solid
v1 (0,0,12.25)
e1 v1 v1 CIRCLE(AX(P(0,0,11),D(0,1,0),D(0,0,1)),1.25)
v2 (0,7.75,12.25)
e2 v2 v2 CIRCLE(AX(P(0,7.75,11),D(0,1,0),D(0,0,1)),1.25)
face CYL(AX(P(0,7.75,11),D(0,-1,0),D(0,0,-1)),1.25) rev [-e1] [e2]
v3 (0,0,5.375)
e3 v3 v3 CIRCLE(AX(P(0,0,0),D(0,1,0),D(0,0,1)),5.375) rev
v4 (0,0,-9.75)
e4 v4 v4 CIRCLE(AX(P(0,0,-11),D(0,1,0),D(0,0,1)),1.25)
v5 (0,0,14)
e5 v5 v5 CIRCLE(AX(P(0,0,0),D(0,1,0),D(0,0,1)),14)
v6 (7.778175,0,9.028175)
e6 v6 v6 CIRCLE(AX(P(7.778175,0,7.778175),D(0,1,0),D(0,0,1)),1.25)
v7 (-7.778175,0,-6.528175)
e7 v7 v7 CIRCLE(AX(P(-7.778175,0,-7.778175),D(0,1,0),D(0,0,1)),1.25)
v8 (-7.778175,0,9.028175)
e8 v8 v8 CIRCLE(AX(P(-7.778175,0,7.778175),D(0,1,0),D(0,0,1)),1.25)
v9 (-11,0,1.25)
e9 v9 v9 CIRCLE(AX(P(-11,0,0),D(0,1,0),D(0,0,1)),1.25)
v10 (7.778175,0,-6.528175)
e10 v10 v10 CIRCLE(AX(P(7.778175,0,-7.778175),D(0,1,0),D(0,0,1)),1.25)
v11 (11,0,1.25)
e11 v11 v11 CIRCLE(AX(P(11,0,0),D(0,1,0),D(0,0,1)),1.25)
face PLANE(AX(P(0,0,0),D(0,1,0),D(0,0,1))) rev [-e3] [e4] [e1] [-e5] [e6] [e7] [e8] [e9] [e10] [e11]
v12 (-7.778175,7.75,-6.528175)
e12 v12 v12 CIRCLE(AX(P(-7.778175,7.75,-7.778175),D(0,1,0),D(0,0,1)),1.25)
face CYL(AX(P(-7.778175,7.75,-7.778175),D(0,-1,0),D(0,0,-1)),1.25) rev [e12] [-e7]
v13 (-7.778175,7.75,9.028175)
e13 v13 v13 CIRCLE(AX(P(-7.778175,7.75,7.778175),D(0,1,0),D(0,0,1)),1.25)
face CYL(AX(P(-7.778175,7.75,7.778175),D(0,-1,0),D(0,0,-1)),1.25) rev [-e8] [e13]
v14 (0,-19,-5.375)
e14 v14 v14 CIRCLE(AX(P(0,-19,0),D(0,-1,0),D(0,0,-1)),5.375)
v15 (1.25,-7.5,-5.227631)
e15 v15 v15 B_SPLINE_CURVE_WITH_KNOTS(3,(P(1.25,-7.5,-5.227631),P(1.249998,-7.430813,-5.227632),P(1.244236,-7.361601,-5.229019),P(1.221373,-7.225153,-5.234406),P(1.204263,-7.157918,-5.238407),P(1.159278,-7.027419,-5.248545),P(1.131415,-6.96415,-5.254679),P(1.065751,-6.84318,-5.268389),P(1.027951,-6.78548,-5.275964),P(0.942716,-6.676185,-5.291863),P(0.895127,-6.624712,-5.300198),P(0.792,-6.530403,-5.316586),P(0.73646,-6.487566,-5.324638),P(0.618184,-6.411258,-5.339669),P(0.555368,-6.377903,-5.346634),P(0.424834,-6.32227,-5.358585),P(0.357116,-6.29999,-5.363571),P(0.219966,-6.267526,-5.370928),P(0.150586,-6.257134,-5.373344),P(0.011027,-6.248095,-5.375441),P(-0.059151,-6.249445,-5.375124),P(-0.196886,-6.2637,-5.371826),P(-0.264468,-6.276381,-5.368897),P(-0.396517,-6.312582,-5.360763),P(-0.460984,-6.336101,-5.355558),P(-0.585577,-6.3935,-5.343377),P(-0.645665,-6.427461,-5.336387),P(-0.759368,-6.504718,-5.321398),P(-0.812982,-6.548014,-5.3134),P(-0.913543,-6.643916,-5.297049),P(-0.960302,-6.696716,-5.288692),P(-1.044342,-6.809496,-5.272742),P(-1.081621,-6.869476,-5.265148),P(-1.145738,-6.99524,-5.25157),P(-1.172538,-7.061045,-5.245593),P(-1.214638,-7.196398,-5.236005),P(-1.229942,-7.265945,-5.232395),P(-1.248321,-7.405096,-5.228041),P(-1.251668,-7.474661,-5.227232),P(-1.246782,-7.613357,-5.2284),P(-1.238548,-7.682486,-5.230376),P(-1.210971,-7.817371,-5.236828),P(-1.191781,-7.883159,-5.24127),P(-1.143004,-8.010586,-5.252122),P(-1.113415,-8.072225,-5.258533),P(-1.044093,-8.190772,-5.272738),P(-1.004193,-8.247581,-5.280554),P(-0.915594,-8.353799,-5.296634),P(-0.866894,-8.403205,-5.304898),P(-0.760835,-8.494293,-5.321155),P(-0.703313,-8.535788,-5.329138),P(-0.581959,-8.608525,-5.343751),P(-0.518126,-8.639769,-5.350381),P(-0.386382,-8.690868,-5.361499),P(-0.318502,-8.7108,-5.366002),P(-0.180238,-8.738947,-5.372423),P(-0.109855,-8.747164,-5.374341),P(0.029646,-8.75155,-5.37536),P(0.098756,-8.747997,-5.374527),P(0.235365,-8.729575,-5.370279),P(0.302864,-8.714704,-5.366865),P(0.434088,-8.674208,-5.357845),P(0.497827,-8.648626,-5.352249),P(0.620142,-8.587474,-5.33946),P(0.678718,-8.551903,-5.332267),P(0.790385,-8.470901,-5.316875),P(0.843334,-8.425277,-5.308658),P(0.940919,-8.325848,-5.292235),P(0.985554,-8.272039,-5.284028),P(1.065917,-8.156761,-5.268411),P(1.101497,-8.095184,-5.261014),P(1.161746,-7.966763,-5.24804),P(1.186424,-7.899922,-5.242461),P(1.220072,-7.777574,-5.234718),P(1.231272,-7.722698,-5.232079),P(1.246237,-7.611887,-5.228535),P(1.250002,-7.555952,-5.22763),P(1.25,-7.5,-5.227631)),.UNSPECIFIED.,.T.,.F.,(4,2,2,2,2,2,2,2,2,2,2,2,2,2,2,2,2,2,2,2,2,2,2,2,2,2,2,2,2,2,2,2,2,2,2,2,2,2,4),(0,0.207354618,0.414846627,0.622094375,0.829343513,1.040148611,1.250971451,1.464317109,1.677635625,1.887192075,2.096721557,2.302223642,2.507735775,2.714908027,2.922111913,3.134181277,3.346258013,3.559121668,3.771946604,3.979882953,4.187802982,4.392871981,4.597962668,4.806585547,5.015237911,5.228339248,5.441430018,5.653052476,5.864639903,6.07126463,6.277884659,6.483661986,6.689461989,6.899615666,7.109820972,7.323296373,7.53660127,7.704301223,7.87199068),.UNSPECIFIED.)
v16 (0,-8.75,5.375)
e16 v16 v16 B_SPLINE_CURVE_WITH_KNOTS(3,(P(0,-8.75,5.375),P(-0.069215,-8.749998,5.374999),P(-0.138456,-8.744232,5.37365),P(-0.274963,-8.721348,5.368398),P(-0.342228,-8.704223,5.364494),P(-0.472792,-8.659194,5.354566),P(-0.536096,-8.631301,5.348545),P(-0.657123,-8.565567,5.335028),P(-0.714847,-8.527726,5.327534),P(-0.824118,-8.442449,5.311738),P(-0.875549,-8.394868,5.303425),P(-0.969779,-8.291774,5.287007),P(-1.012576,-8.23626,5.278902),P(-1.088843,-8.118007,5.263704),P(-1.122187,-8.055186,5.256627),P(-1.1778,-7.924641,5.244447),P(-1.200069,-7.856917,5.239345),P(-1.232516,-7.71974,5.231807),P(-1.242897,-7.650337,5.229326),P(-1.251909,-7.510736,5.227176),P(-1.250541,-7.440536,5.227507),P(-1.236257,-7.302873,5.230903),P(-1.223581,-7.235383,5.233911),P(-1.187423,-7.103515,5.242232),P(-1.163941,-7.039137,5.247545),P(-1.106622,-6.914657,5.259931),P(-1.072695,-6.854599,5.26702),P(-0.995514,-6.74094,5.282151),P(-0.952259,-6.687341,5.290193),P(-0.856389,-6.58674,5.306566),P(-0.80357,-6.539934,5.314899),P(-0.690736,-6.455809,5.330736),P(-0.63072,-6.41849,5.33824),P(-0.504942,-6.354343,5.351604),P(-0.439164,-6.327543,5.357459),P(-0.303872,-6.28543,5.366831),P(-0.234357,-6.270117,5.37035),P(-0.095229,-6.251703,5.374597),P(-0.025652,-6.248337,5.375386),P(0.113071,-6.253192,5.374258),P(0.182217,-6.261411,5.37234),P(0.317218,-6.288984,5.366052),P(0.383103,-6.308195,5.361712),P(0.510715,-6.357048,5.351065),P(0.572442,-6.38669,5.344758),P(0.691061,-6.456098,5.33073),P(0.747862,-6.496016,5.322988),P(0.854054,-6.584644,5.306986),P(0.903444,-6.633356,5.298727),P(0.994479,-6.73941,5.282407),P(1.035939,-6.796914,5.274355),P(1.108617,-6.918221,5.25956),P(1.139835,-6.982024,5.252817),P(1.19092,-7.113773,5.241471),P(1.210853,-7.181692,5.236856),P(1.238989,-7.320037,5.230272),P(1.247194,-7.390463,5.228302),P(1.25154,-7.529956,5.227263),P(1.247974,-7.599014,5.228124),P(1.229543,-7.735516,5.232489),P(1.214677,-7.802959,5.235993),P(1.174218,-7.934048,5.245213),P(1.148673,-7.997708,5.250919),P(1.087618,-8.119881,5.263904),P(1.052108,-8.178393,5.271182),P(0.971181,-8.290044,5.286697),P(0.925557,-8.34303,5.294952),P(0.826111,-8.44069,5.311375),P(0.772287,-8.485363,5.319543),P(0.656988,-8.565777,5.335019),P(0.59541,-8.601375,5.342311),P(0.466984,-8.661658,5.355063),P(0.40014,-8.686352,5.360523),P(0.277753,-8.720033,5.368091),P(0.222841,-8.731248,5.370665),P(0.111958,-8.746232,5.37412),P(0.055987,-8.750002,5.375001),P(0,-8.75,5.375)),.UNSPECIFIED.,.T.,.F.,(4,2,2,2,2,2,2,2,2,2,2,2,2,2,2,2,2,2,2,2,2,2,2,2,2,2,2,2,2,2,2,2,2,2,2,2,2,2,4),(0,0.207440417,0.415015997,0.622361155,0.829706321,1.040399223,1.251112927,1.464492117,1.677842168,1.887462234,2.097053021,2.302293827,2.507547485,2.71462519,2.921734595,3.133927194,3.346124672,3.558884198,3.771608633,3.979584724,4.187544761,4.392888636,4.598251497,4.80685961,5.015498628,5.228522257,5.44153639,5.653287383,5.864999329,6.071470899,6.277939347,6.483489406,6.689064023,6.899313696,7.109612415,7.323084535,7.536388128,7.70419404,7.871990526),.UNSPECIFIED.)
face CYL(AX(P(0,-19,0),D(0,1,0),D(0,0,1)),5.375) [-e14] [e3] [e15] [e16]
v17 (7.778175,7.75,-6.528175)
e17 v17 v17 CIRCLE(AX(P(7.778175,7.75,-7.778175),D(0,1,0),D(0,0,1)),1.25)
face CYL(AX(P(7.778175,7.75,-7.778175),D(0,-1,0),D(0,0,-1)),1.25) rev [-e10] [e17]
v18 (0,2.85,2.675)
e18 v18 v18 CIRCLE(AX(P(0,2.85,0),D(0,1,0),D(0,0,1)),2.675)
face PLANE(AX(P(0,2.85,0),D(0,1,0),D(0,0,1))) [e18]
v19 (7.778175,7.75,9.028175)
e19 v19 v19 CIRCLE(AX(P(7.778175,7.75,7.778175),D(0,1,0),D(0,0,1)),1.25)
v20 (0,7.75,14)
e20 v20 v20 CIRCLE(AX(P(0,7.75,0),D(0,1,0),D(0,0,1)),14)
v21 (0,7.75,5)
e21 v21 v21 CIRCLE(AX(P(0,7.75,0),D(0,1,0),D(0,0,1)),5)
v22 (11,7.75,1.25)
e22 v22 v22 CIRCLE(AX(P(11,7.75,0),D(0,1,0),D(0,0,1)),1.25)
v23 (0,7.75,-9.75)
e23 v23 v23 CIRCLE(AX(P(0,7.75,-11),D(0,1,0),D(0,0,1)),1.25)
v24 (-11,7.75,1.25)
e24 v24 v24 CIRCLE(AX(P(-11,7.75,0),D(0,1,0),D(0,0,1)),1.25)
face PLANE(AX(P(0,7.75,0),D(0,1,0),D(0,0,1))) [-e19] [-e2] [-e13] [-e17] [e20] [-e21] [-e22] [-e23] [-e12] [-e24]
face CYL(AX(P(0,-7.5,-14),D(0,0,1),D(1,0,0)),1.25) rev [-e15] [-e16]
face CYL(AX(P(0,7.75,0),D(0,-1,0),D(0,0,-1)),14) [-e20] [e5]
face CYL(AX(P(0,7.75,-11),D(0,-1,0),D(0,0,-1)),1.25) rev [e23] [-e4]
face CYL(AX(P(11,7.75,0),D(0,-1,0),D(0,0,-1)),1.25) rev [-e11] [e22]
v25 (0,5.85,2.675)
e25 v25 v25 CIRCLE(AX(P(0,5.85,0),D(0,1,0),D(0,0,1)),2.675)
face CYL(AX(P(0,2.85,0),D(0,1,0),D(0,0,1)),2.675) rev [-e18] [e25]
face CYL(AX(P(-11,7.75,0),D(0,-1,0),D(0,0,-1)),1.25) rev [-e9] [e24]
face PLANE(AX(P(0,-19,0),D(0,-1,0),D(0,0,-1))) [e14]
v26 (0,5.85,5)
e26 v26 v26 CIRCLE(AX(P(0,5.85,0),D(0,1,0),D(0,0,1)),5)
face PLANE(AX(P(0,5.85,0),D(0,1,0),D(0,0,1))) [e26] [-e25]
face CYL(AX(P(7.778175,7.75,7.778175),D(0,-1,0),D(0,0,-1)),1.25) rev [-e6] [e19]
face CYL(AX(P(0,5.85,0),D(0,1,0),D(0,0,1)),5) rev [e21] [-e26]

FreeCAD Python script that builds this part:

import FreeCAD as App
import Part
import Sketcher

doc = App.newDocument("Part")
body = doc.addObject("PartDesign::Body", "Body")

# Sketch on XZ plane
sketch1 = body.newObject("Sketcher::SketchObject", "Sketch")
sketch1.AttachmentSupport = (doc.getObject("XZ_Plane"), [""])
sketch1.MapMode = "FlatFace"
sketch1.addGeometry([
    Part.Circle(App.Vector(0, 0, 0), App.Vector(0, 0, 1), 14),  # 0
    Part.Circle(App.Vector(-7.778175, 7.778175, 0), App.Vector(0, 0, 1), 1.25),  # 1
    Part.Circle(App.Vector(0, 11, 0), App.Vector(0, 0, 1), 1.25),  # 2
    Part.Circle(App.Vector(-11, 0, 0), App.Vector(0, 0, 1), 1.25),  # 3
    Part.Circle(App.Vector(7.778175, 7.778175, 0), App.Vector(0, 0, 1), 1.25),  # 4
    Part.Circle(App.Vector(11, 0, 0), App.Vector(0, 0, 1), 1.25),  # 5
    Part.Circle(App.Vector(-7.778175, -7.778175, 0), App.Vector(0, 0, 1), 1.25),  # 6
    Part.Circle(App.Vector(0, -11, 0), App.Vector(0, 0, 1), 1.25),  # 7
    Part.Circle(App.Vector(7.778175, -7.778175, 0), App.Vector(0, 0, 1), 1.25),  # 8
], False)
sketch1.addConstraint([
    Sketcher.Constraint("Coincident", 0, 3, -1, 1),
    Sketcher.Constraint("Equal", 1, 2),
    Sketcher.Constraint("Equal", 2, 3),
    Sketcher.Constraint("Equal", 3, 4),
    Sketcher.Constraint("Equal", 4, 5),
    Sketcher.Constraint("Equal", 5, 6),
    Sketcher.Constraint("Equal", 6, 7),
    Sketcher.Constraint("Equal", 7, 8),
    Sketcher.Constraint("Symmetric", 3, 3, 5, 3, -1, 1),
    Sketcher.Constraint("Symmetric", 4, 3, 6, 3, -1, 1),
    Sketcher.Constraint("Symmetric", 2, 3, 7, 3, -1, 1),
    Sketcher.Constraint("Symmetric", 1, 3, 8, 3, -1, 1),
    Sketcher.Constraint("Symmetric", 1, 3, 4, 3, -2),
    Sketcher.Constraint("PointOnObject", 2, 3, -2),
    Sketcher.Constraint("PointOnObject", 3, 3, -1),
    Sketcher.Constraint("Diameter", 0, 28.0),
    Sketcher.Constraint("Diameter", 1, 2.5),
    Sketcher.Constraint("DistanceY", -1, 1, 2, 3, 11.0),
    Sketcher.Constraint("DistanceX", 3, 3, -1, 1, 11.0),
    Sketcher.Constraint("DistanceX", 1, 3, 4, 3, 15.556349),
    Sketcher.Constraint("DistanceY", 6, 3, 1, 3, 15.556349),
])
pad1 = body.newObject("PartDesign::Pad", "Pad")
pad1.Profile = sketch1
pad1.Length = 7.75
pad1.Reversed = True

# Sketch on XZ plane
sketch2 = body.newObject("Sketcher::SketchObject", "Sketch001")
sketch2.AttachmentSupport = (doc.getObject("XZ_Plane"), [""])
sketch2.MapMode = "FlatFace"
sketch2.AttachmentOffset = App.Placement(App.Vector(0, 0, -7.75), App.Rotation())
sketch2.addGeometry(Part.Circle(App.Vector(0, 0, 0), App.Vector(0, 0, 1), 5), False)
sketch2.addConstraint([
    Sketcher.Constraint("Coincident", 0, 3, -1, 1),
    Sketcher.Constraint("Diameter", 0, 10.0),
])
pocket1 = body.newObject("PartDesign::Pocket", "Pocket")
pocket1.Profile = sketch2
pocket1.Length = 1.9
pocket1.Reversed = True

# Sketch on XZ plane
sketch3 = body.newObject("Sketcher::SketchObject", "Sketch002")
sketch3.AttachmentSupport = (doc.getObject("XZ_Plane"), [""])
sketch3.MapMode = "FlatFace"
sketch3.AttachmentOffset = App.Placement(App.Vector(0, 0, -5.85), App.Rotation())
sketch3.addGeometry(Part.Circle(App.Vector(0, 0, 0), App.Vector(0, 0, 1), 2.675), False)
sketch3.addConstraint([
    Sketcher.Constraint("Coincident", 0, 3, -1, 1),
    Sketcher.Constraint("Diameter", 0, 5.35),
])
pocket2 = body.newObject("PartDesign::Pocket", "Pocket001")
pocket2.Profile = sketch3
pocket2.Length = 3
pocket2.Reversed = True

# Sketch on XZ plane
sketch4 = body.newObject("Sketcher::SketchObject", "Sketch003")
sketch4.AttachmentSupport = (doc.getObject("XZ_Plane"), [""])
sketch4.MapMode = "FlatFace"
sketch4.addGeometry(Part.Circle(App.Vector(0, 0, 0), App.Vector(0, 0, 1), 5.375), False)
sketch4.addConstraint([
    Sketcher.Constraint("Coincident", 0, 3, -1, 1),
    Sketcher.Constraint("Diameter", 0, 10.75),
])
pad2 = body.newObject("PartDesign::Pad", "Pad001")
pad2.Profile = sketch4
pad2.Length = 19

# Sketch on XY plane
sketch5 = body.newObject("Sketcher::SketchObject", "Sketch004")
sketch5.AttachmentSupport = (doc.getObject("XY_Plane"), [""])
sketch5.MapMode = "FlatFace"
sketch5.addGeometry(Part.Circle(App.Vector(0, -7.5, 0), App.Vector(0, 0, 1), 1.25), False)
sketch5.addConstraint([
    Sketcher.Constraint("PointOnObject", 0, 3, -2),
    Sketcher.Constraint("Diameter", 0, 2.5),
    Sketcher.Constraint("DistanceY", 0, 3, -1, 1, 7.5),
])
pocket3 = body.newObject("PartDesign::Pocket", "Pocket002")
pocket3.Profile = sketch5
pocket3.Type = "ThroughAll"
pocket3.Midplane = True

doc.recompute()
